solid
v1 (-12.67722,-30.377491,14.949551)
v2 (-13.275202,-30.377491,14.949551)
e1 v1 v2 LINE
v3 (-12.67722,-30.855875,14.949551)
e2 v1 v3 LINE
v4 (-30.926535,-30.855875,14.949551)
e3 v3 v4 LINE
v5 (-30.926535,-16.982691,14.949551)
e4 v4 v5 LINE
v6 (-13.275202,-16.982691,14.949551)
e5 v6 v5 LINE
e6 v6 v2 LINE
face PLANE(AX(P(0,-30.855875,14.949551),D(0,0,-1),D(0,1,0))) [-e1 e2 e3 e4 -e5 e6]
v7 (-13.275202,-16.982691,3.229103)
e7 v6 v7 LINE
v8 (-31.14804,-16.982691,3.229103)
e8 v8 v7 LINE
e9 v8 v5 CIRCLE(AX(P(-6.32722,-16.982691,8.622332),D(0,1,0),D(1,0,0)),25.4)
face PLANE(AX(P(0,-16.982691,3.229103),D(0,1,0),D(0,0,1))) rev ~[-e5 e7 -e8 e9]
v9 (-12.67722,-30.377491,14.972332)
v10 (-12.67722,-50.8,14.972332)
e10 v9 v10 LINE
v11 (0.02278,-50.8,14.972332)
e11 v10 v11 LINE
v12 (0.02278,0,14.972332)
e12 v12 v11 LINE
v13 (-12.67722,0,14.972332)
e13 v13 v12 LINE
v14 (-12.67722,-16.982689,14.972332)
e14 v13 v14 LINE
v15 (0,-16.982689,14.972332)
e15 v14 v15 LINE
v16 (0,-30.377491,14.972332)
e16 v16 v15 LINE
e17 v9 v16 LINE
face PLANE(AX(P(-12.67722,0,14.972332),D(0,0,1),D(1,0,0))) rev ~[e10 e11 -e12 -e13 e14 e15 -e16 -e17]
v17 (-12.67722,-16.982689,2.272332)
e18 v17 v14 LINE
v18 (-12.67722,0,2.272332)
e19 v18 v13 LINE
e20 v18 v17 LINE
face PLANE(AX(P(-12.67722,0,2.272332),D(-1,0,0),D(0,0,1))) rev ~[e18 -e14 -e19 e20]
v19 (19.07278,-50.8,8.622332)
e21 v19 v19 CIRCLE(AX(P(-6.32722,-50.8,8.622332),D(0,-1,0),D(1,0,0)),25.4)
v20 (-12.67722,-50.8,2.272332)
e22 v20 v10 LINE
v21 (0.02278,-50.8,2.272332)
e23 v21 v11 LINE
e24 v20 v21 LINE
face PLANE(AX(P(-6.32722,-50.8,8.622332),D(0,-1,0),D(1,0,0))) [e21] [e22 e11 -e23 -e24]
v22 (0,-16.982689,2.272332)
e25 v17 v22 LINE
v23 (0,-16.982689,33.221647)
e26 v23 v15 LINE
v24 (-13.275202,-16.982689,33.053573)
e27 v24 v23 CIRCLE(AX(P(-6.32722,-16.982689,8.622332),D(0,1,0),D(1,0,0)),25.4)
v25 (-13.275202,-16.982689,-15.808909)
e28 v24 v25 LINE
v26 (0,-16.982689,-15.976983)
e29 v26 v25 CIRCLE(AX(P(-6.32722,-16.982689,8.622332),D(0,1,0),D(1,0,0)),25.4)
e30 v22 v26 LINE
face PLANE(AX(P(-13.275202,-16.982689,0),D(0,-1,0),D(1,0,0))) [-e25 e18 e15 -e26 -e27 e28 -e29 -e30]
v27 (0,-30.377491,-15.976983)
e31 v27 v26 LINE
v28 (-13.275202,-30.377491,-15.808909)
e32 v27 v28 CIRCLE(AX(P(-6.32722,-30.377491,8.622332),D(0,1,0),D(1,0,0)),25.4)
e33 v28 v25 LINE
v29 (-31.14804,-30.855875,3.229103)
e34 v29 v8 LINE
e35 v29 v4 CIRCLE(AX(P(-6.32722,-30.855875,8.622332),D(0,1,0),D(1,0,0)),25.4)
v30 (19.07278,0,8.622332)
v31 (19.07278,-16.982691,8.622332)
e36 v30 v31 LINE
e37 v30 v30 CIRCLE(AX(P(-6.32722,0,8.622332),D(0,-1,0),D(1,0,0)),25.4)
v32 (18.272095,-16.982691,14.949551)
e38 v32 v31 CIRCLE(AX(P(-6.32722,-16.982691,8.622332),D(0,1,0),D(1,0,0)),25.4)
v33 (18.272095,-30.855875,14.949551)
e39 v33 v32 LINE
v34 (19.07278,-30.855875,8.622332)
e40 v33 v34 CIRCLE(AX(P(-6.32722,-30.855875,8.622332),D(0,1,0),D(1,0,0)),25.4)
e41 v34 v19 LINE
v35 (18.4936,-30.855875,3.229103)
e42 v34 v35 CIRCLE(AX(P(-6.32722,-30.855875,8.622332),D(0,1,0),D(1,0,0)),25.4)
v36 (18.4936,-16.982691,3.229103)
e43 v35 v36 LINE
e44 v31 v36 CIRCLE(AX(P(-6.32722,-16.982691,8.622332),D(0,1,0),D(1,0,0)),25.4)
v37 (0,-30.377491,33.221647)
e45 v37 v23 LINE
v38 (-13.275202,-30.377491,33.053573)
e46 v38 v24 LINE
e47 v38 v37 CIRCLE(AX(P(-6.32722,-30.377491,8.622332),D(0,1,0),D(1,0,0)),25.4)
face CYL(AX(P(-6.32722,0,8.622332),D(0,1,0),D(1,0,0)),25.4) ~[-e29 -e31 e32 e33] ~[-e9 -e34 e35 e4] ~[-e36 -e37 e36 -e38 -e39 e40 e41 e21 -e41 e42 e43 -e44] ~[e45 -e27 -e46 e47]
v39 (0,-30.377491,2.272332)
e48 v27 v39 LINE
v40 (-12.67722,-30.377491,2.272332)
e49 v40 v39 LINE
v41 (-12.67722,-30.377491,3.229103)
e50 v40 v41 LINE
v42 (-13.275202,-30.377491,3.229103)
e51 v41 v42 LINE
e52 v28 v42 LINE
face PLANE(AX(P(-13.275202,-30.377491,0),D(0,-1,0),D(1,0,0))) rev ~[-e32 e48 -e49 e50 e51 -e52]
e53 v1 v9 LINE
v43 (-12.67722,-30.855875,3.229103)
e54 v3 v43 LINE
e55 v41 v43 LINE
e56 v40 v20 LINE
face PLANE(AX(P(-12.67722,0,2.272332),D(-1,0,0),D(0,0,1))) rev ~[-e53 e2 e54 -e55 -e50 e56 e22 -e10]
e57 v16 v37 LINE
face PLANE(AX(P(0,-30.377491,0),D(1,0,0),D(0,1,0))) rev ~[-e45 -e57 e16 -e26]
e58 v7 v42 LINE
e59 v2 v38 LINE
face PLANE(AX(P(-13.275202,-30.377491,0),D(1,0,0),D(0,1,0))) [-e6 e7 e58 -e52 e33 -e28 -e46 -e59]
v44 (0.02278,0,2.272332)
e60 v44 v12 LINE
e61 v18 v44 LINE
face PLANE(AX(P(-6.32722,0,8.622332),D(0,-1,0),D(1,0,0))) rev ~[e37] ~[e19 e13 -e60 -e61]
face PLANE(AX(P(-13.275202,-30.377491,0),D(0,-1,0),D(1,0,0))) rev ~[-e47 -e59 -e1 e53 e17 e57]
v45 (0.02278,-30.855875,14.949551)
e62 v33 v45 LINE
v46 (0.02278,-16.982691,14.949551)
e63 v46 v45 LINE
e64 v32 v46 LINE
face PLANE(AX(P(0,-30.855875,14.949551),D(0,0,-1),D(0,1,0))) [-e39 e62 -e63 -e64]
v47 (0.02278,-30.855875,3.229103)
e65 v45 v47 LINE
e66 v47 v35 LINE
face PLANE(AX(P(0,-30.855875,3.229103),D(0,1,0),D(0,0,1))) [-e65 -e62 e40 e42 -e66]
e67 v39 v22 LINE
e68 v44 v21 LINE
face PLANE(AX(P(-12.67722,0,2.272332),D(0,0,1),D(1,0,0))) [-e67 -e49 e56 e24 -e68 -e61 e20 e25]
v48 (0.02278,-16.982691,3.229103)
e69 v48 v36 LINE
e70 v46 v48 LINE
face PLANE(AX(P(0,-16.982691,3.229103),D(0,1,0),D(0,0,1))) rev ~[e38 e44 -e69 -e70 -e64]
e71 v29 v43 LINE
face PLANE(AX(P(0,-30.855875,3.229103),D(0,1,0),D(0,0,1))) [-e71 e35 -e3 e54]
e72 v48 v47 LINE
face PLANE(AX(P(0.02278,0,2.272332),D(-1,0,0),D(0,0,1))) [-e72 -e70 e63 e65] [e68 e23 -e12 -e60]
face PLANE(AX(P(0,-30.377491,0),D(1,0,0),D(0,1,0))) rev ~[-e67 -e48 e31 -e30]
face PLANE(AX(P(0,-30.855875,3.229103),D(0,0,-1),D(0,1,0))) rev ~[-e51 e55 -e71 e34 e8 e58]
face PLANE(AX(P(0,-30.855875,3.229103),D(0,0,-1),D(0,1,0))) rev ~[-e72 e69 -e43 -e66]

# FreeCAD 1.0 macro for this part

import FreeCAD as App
import Part
import Sketcher

V = App.Vector
Q = App.Units.Quantity


def add_polygon(sketch, points):
    """Adds a closed chain of lines whose ends are joined by coincident constraints."""
    first, n = sketch.GeometryCount, len(points)
    for a, b in zip(points, points[1:] + points[:1]):
        sketch.addGeometry(Part.LineSegment(App.Vector(*a, 0), App.Vector(*b, 0)), False)
    for i in range(n):
        sketch.addConstraint(Sketcher.Constraint("Coincident", first + i, 2, first + (i + 1) % n, 1))

doc = App.newDocument("Part")
params = doc.addObject("Spreadsheet::Sheet", "Params")
for row, (alias, value) in enumerate([
    ("sketch1_diameter", "2 in"),
    ("sketch1_width", "0.5 in"),
    ("pad1_length", "2 in"),
    ("pocket1_length", "4 in"),
    ("pocket2_length", "4 in"),
], start=1):
    params.set(f"A{row}", alias)
    params.set(f"B{row}", "=" + value)
    params.setAlias(f"B{row}", alias)

body = doc.addObject("PartDesign::Body", "Body")

# Sketch on XZ plane
sketch1 = body.newObject("Sketcher::SketchObject", "Sketch")
sketch1.AttachmentSupport = (doc.getObject("XZ_Plane"), [""])
sketch1.MapMode = "FlatFace"
sketch1.addGeometry(Part.Circle(V(-6, 9, 0), V(0, 0, 1), 25), False)  # 0
add_polygon(sketch1, [(0, 2), (-13, 2), (-13, 15), (0, 15)])  # lines 1-4
sketch1.addConstraint([
    Sketcher.Constraint("Horizontal", 1),
    Sketcher.Constraint("Vertical", 2),
    Sketcher.Constraint("Horizontal", 3),
    Sketcher.Constraint("Vertical", 4),
    Sketcher.Constraint("Equal", 3, 2),
    Sketcher.Constraint("Diameter", 0, Q("2 in")),
    Sketcher.Constraint("DistanceX", 1, 2, 1, 1, Q("0.5 in")),
    Sketcher.Constraint("DistanceX", 1, 2, 0, 3, Q("0.25 in")),
    Sketcher.Constraint("DistanceY", 1, 2, 0, 3, Q("0.25 in")),
    Sketcher.Constraint("DistanceX", 0, 3, -1, 1, Q("6.32722 mm")),
    Sketcher.Constraint("DistanceY", -1, 1, 1, 2, Q("2.272332 mm")),
])
sketch1.setExpression("Constraints[9]", "Params.sketch1_diameter")
sketch1.setExpression("Constraints[10]", "Params.sketch1_width")
pad1 = body.newObject("PartDesign::Pad", "Pad")
pad1.Profile = sketch1
pad1.setExpression("Length", "Params.pad1_length")

# Sketch on YZ plane
sketch2 = body.newObject("Sketcher::SketchObject", "Sketch001")
sketch2.AttachmentSupport = (doc.getObject("YZ_Plane"), [""])
sketch2.MapMode = "FlatFace"
add_polygon(sketch2, [(-31, 15), (-31, 3), (-17, 3), (-17, 15)])  # lines 0-3
sketch2.addConstraint([
    Sketcher.Constraint("Vertical", 0),
    Sketcher.Constraint("Horizontal", 1),
    Sketcher.Constraint("Vertical", 2),
    Sketcher.Constraint("Horizontal", 3),
    Sketcher.Constraint("DistanceX", 1, 1, 1, 2, Q("13.873184 mm")),
    Sketcher.Constraint("DistanceY", 0, 2, 0, 1, Q("11.720448 mm")),
    Sketcher.Constraint("DistanceX", 1, 2, -1, 1, Q("16.982691 mm")),
    Sketcher.Constraint("DistanceY", -1, 1, 2, 2, Q("14.949551 mm")),
])
pocket1 = body.newObject("PartDesign::Pocket", "Pocket")
pocket1.Profile = sketch2
pocket1.setExpression("Length", "Params.pocket1_length")
pocket1.Midplane = True

# Sketch on XY plane
sketch3 = body.newObject("Sketcher::SketchObject", "Sketch002")
sketch3.AttachmentSupport = (doc.getObject("XY_Plane"), [""])
sketch3.MapMode = "FlatFace"
add_polygon(sketch3, [(-13, -17), (-13, -30), (0, -30), (0, -17)])  # lines 0-3
sketch3.addConstraint([
    Sketcher.Constraint("Vertical", 0),
    Sketcher.Constraint("Horizontal", 1),
    Sketcher.Constraint("Vertical", 2),
    Sketcher.Constraint("Horizontal", 3),
    Sketcher.Constraint("PointOnObject", 1, 2, -2),
    Sketcher.Constraint("DistanceY", 0, 2, 0, 1, Q("13.394801 mm")),
    Sketcher.Constraint("DistanceX", 1, 1, 1, 2, Q("13.275202 mm")),
    Sketcher.Constraint("DistanceY", 0, 2, -1, 1, Q("30.377491 mm")),
])
pocket2 = body.newObject("PartDesign::Pocket", "Pocket001")
pocket2.Profile = sketch3
pocket2.setExpression("Length", "Params.pocket2_length")
pocket2.Midplane = True

doc.recompute()
